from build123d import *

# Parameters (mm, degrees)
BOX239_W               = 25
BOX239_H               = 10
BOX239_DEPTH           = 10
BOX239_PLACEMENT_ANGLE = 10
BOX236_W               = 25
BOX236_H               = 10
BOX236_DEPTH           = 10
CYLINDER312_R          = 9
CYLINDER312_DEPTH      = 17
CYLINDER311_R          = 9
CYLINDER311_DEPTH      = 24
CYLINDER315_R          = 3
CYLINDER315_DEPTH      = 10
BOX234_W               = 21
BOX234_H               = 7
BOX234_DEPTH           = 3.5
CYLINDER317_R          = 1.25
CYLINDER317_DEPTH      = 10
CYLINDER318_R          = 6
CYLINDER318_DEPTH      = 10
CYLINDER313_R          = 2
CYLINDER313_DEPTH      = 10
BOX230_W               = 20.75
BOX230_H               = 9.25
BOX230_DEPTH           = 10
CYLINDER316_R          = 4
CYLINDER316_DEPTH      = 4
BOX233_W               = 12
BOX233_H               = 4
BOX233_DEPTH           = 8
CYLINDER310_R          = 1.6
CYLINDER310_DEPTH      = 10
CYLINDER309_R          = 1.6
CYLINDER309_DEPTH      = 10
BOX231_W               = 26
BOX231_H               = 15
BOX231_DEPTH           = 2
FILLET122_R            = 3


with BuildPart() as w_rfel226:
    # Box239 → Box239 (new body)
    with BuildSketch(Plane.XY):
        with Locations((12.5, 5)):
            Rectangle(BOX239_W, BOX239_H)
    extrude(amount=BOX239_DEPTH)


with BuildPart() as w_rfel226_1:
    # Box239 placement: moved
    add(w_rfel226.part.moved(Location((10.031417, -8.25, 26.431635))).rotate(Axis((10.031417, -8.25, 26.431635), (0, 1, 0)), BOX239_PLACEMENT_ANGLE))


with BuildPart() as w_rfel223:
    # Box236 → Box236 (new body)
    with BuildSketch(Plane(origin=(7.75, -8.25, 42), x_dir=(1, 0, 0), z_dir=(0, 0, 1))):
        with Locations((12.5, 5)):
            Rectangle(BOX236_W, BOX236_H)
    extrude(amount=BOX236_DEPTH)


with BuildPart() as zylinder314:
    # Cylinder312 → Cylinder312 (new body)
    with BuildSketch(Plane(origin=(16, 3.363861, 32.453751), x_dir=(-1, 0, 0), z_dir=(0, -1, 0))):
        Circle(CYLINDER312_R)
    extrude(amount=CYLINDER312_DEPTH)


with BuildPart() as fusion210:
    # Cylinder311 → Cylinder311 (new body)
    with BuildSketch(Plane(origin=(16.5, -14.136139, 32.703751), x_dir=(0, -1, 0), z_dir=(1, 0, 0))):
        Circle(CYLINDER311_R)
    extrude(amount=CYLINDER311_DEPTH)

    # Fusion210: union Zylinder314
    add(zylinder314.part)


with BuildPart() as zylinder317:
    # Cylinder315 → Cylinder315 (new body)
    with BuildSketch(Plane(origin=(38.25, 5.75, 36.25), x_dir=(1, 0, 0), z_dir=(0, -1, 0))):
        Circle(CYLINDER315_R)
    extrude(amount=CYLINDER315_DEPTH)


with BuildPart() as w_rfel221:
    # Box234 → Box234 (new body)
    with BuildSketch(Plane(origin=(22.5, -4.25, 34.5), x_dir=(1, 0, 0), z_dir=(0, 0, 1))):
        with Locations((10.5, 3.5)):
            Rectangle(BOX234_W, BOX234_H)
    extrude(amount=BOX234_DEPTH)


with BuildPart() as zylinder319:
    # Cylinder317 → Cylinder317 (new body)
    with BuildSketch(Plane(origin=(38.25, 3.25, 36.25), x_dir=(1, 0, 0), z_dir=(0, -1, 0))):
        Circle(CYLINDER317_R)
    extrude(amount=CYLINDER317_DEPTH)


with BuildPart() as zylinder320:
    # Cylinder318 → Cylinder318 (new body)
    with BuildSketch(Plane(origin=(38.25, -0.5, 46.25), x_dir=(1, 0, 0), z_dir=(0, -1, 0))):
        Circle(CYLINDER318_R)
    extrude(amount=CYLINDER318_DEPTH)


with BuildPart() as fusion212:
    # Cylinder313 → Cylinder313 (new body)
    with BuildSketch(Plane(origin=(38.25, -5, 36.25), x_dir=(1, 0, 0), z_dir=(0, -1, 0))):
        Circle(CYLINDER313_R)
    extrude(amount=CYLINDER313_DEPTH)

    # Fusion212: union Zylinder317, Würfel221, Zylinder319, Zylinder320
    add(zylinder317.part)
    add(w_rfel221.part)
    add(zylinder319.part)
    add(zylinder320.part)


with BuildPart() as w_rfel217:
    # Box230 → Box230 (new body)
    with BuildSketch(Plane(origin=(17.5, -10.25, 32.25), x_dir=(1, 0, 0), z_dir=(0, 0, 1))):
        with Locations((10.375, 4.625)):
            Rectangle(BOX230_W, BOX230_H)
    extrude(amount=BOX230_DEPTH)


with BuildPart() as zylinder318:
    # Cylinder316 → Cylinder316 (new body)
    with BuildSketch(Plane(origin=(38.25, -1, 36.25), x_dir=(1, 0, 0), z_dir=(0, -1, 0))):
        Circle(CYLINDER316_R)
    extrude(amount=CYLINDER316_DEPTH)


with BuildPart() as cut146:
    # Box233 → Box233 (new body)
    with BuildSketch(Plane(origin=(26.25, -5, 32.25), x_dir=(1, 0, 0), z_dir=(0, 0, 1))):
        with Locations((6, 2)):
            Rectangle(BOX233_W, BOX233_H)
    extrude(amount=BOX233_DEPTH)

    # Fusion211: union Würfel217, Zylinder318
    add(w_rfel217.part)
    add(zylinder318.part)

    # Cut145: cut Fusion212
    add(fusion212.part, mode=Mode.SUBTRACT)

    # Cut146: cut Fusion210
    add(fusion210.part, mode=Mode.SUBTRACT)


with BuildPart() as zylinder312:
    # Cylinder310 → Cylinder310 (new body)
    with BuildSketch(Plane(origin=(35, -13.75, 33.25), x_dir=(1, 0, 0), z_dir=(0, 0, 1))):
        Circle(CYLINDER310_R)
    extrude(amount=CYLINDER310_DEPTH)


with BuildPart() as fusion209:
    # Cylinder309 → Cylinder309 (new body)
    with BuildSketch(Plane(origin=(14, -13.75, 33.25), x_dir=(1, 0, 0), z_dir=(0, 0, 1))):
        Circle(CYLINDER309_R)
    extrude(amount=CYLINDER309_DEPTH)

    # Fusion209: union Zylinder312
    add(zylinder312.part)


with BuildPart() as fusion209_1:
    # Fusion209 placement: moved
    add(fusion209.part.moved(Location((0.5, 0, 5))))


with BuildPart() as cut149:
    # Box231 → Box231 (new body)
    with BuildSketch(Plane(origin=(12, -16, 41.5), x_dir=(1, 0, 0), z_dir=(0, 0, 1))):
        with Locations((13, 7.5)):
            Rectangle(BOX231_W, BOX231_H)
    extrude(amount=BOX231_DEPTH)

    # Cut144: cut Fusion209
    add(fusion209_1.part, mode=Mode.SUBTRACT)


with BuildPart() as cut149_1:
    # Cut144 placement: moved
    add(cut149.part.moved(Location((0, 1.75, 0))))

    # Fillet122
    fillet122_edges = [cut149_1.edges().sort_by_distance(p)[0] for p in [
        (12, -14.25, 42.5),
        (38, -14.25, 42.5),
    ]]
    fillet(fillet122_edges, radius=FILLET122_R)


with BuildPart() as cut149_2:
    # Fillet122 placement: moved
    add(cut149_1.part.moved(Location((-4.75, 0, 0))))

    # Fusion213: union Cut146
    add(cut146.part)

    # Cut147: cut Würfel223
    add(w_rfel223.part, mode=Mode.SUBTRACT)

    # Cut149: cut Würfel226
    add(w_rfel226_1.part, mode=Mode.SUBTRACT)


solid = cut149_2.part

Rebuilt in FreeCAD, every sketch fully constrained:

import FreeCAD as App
import Part
import Sketcher
from FreeCAD import Vector
Q = App.Units.Quantity


def edges_at(feature, points):
    """Names of the edges that pass closest to the given points."""
    edges = feature.Shape.Edges
    near = lambda p: min(range(len(edges)), key=lambda i: edges[i].distToShape(Part.Vertex(*p))[0])
    return sorted({f"Edge{near(p) + 1}" for p in points})


def add_polygon(sketch, points):
    """Adds a closed chain of lines whose ends are joined by coincident constraints."""
    first, n = sketch.GeometryCount, len(points)
    for a, b in zip(points, points[1:] + points[:1]):
        sketch.addGeometry(Part.LineSegment(App.Vector(*a, 0), App.Vector(*b, 0)), False)
    for i in range(n):
        sketch.addConstraint(Sketcher.Constraint("Coincident", first + i, 2, first + (i + 1) % n, 1))

doc = App.newDocument("Part")
body = doc.addObject("PartDesign::Body", "Body")

sketch1 = doc.addObject("Sketcher::SketchObject", "Sketch")
body.addObject(sketch1)
sketch1.AttachmentSupport = (doc.XY_Plane, [""])
sketch1.MapMode = "FlatFace"
add_polygon(sketch1, [(0, 10), (0, 0), (25, 0), (25, 10)])
sketch1.addConstraint(Sketcher.Constraint("Vertical", 0))
sketch1.addConstraint(Sketcher.Constraint("Horizontal", 1))
sketch1.addConstraint(Sketcher.Constraint("Vertical", 2))
sketch1.addConstraint(Sketcher.Constraint("Horizontal", 3))
sketch1.addConstraint(Sketcher.Constraint("Coincident", 0, 2, -1, 1))
sketch1.addConstraint(Sketcher.Constraint("DistanceX", 1, 1, 1, 2, Q("25 mm")))
sketch1.addConstraint(Sketcher.Constraint("DistanceY", 0, 2, 0, 1, Q("10 mm")))
pad1 = doc.addObject("PartDesign::Pad", "Pad")
body.addObject(pad1)
pad1.Profile = sketch1
pad1.Length = 10
body2 = doc.addObject("PartDesign::Body", "Body001")
doc.recompute()

body.Placement = App.Placement(Vector(10.031417, -8.25, 26.431635), App.Rotation(Vector(0, 1, 0), 10))
boolean = doc.addObject("PartDesign::Boolean", "Boolean")
body2.addObject(boolean)
boolean.Type = "Fuse"
boolean.addObjects([body])
body3 = doc.addObject("PartDesign::Body", "Body002")

sketch2 = doc.addObject("Sketcher::SketchObject", "Sketch001")
body3.addObject(sketch2)
sketch2.AttachmentSupport = (doc.getObject("XY_Plane002"), [""])
sketch2.MapMode = "FlatFace"
sketch2.AttachmentOffset = App.Placement(Vector(0, 0, 42), App.Rotation())
add_polygon(sketch2, [(8, 2), (8, -8), (33, -8), (33, 2)])
sketch2.addConstraint(Sketcher.Constraint("Vertical", 0))
sketch2.addConstraint(Sketcher.Constraint("Horizontal", 1))
sketch2.addConstraint(Sketcher.Constraint("Vertical", 2))
sketch2.addConstraint(Sketcher.Constraint("Horizontal", 3))
sketch2.addConstraint(Sketcher.Constraint("DistanceX", 1, 1, 1, 2, Q("25 mm")))
sketch2.addConstraint(Sketcher.Constraint("DistanceY", 0, 2, 0, 1, Q("10 mm")))
sketch2.addConstraint(Sketcher.Constraint("DistanceX", -1, 1, 0, 2, Q("7.75 mm")))
sketch2.addConstraint(Sketcher.Constraint("DistanceY", 0, 2, -1, 1, Q("8.25 mm")))
pad2 = doc.addObject("PartDesign::Pad", "Pad001")
body3.addObject(pad2)
pad2.Profile = sketch2
pad2.Length = 10
body4 = doc.addObject("PartDesign::Body", "Body003")

sketch3 = doc.addObject("Sketcher::SketchObject", "Sketch002")
body4.addObject(sketch3)
sketch3.AttachmentSupport = (doc.getObject("XZ_Plane003"), [""])
sketch3.MapMode = "FlatFace"
sketch3.AttachmentOffset = App.Placement(Vector(0, 0, -3.363861), App.Rotation())
sketch3.addGeometry(Part.Circle(Vector(16, 32, 0), Vector(0, 0, 1), 9), False)
sketch3.addConstraint(Sketcher.Constraint("Diameter", 0, Q("18 mm")))
sketch3.addConstraint(Sketcher.Constraint("DistanceX", -1, 1, 0, 3, Q("16 mm")))
sketch3.addConstraint(Sketcher.Constraint("DistanceY", -1, 1, 0, 3, Q("32.453751 mm")))
pad3 = doc.addObject("PartDesign::Pad", "Pad002")
body4.addObject(pad3)
pad3.Profile = sketch3
pad3.Length = 17
body5 = doc.addObject("PartDesign::Body", "Body004")

sketch4 = doc.addObject("Sketcher::SketchObject", "Sketch003")
body5.addObject(sketch4)
sketch4.AttachmentSupport = (doc.getObject("YZ_Plane004"), [""])
sketch4.MapMode = "FlatFace"
sketch4.AttachmentOffset = App.Placement(Vector(0, 0, 16.5), App.Rotation())
sketch4.addGeometry(Part.Circle(Vector(-14, 33, 0), Vector(0, 0, 1), 9), False)
sketch4.addConstraint(Sketcher.Constraint("Diameter", 0, Q("18 mm")))
sketch4.addConstraint(Sketcher.Constraint("DistanceX", 0, 3, -1, 1, Q("14.136139 mm")))
sketch4.addConstraint(Sketcher.Constraint("DistanceY", -1, 1, 0, 3, Q("32.703751 mm")))
pad4 = doc.addObject("PartDesign::Pad", "Pad003")
body5.addObject(pad4)
pad4.Profile = sketch4
pad4.Length = 24
doc.recompute()

boolean2 = doc.addObject("PartDesign::Boolean", "Boolean001")
body5.addObject(boolean2)
boolean2.Type = "Fuse"
boolean2.addObjects([body4])
body6 = doc.addObject("PartDesign::Body", "Body005")

sketch5 = doc.addObject("Sketcher::SketchObject", "Sketch004")
body6.addObject(sketch5)
sketch5.AttachmentSupport = (doc.getObject("XZ_Plane005"), [""])
sketch5.MapMode = "FlatFace"
sketch5.AttachmentOffset = App.Placement(Vector(0, 0, -5.75), App.Rotation())
sketch5.addGeometry(Part.Circle(Vector(38.2, 36.2, 0), Vector(0, 0, 1), 3), False)
sketch5.addConstraint(Sketcher.Constraint("Diameter", 0, Q("6 mm")))
sketch5.addConstraint(Sketcher.Constraint("DistanceX", -1, 1, 0, 3, Q("38.25 mm")))
sketch5.addConstraint(Sketcher.Constraint("DistanceY", -1, 1, 0, 3, Q("36.25 mm")))
pad5 = doc.addObject("PartDesign::Pad", "Pad004")
body6.addObject(pad5)
pad5.Profile = sketch5
pad5.Length = 10
body7 = doc.addObject("PartDesign::Body", "Body006")

sketch6 = doc.addObject("Sketcher::SketchObject", "Sketch005")
body7.addObject(sketch6)
sketch6.AttachmentSupport = (doc.getObject("XY_Plane006"), [""])
sketch6.MapMode = "FlatFace"
sketch6.AttachmentOffset = App.Placement(Vector(0, 0, 34.5), App.Rotation())
add_polygon(sketch6, [(22, 3), (22, -4), (44, -4), (44, 3)])
sketch6.addConstraint(Sketcher.Constraint("Vertical", 0))
sketch6.addConstraint(Sketcher.Constraint("Horizontal", 1))
sketch6.addConstraint(Sketcher.Constraint("Vertical", 2))
sketch6.addConstraint(Sketcher.Constraint("Horizontal", 3))
sketch6.addConstraint(Sketcher.Constraint("DistanceX", 1, 1, 1, 2, Q("21 mm")))
sketch6.addConstraint(Sketcher.Constraint("DistanceY", 0, 2, 0, 1, Q("7 mm")))
sketch6.addConstraint(Sketcher.Constraint("DistanceX", -1, 1, 0, 2, Q("22.5 mm")))
sketch6.addConstraint(Sketcher.Constraint("DistanceY", 0, 2, -1, 1, Q("4.25 mm")))
pad6 = doc.addObject("PartDesign::Pad", "Pad005")
body7.addObject(pad6)
pad6.Profile = sketch6
pad6.Length = 3.5
body8 = doc.addObject("PartDesign::Body", "Body007")

sketch7 = doc.addObject("Sketcher::SketchObject", "Sketch006")
body8.addObject(sketch7)
sketch7.AttachmentSupport = (doc.getObject("XZ_Plane007"), [""])
sketch7.MapMode = "FlatFace"
sketch7.AttachmentOffset = App.Placement(Vector(0, 0, -3.25), App.Rotation())
sketch7.addGeometry(Part.Circle(Vector(38.2, 36.2, 0), Vector(0, 0, 1), 1.2), False)
sketch7.addConstraint(Sketcher.Constraint("Diameter", 0, Q("2.5 mm")))
sketch7.addConstraint(Sketcher.Constraint("DistanceX", -1, 1, 0, 3, Q("38.25 mm")))
sketch7.addConstraint(Sketcher.Constraint("DistanceY", -1, 1, 0, 3, Q("36.25 mm")))
pad7 = doc.addObject("PartDesign::Pad", "Pad006")
body8.addObject(pad7)
pad7.Profile = sketch7
pad7.Length = 10
body9 = doc.addObject("PartDesign::Body", "Body008")

sketch8 = doc.addObject("Sketcher::SketchObject", "Sketch007")
body9.addObject(sketch8)
sketch8.AttachmentSupport = (doc.getObject("XZ_Plane008"), [""])
sketch8.MapMode = "FlatFace"
sketch8.AttachmentOffset = App.Placement(Vector(0, 0, 0.5), App.Rotation())
sketch8.addGeometry(Part.Circle(Vector(38, 46, 0), Vector(0, 0, 1), 6), False)
sketch8.addConstraint(Sketcher.Constraint("Diameter", 0, Q("12 mm")))
sketch8.addConstraint(Sketcher.Constraint("DistanceX", -1, 1, 0, 3, Q("38.25 mm")))
sketch8.addConstraint(Sketcher.Constraint("DistanceY", -1, 1, 0, 3, Q("46.25 mm")))
pad8 = doc.addObject("PartDesign::Pad", "Pad007")
body9.addObject(pad8)
pad8.Profile = sketch8
pad8.Length = 10
body10 = doc.addObject("PartDesign::Body", "Body009")
body10.AllowCompound = True

sketch9 = doc.addObject("Sketcher::SketchObject", "Sketch008")
body10.addObject(sketch9)
sketch9.AttachmentSupport = (doc.getObject("XZ_Plane009"), [""])
sketch9.MapMode = "FlatFace"
sketch9.AttachmentOffset = App.Placement(Vector(0, 0, 5), App.Rotation())
sketch9.addGeometry(Part.Circle(Vector(38.2, 36.2, 0), Vector(0, 0, 1), 2), False)
sketch9.addConstraint(Sketcher.Constraint("Diameter", 0, Q("4 mm")))
sketch9.addConstraint(Sketcher.Constraint("DistanceX", -1, 1, 0, 3, Q("38.25 mm")))
sketch9.addConstraint(Sketcher.Constraint("DistanceY", -1, 1, 0, 3, Q("36.25 mm")))
pad9 = doc.addObject("PartDesign::Pad", "Pad008")
body10.addObject(pad9)
pad9.Profile = sketch9
pad9.Length = 10
doc.recompute()

boolean3 = doc.addObject("PartDesign::Boolean", "Boolean002")
body10.addObject(boolean3)
boolean3.Type = "Fuse"
boolean3.addObjects([body6])
doc.recompute()

boolean4 = doc.addObject("PartDesign::Boolean", "Boolean003")
body10.addObject(boolean4)
boolean4.Type = "Fuse"
boolean4.addObjects([body7])
doc.recompute()

boolean5 = doc.addObject("PartDesign::Boolean", "Boolean004")
body10.addObject(boolean5)
boolean5.Type = "Fuse"
boolean5.addObjects([body8])
doc.recompute()

boolean6 = doc.addObject("PartDesign::Boolean", "Boolean005")
body10.addObject(boolean6)
boolean6.Type = "Fuse"
boolean6.addObjects([body9])
body11 = doc.addObject("PartDesign::Body", "Body010")

sketch10 = doc.addObject("Sketcher::SketchObject", "Sketch009")
body11.addObject(sketch10)
sketch10.AttachmentSupport = (doc.getObject("XY_Plane010"), [""])
sketch10.MapMode = "FlatFace"
sketch10.AttachmentOffset = App.Placement(Vector(0, 0, 32.25), App.Rotation())
add_polygon(sketch10, [(18, -1), (18, -10), (38, -10), (38, -1)])
sketch10.addConstraint(Sketcher.Constraint("Vertical", 0))
sketch10.addConstraint(Sketcher.Constraint("Horizontal", 1))
sketch10.addConstraint(Sketcher.Constraint("Vertical", 2))
sketch10.addConstraint(Sketcher.Constraint("Horizontal", 3))
sketch10.addConstraint(Sketcher.Constraint("DistanceY", 2, 2, -1, 1, Q("1 mm")))
sketch10.addConstraint(Sketcher.Constraint("DistanceX", 1, 1, 1, 2, Q("20.75 mm")))
sketch10.addConstraint(Sketcher.Constraint("DistanceY", 0, 2, 0, 1, Q("9.25 mm")))
sketch10.addConstraint(Sketcher.Constraint("DistanceX", -1, 1, 0, 2, Q("17.5 mm")))
pad10 = doc.addObject("PartDesign::Pad", "Pad009")
body11.addObject(pad10)
pad10.Profile = sketch10
pad10.Length = 10
body12 = doc.addObject("PartDesign::Body", "Body011")

sketch11 = doc.addObject("Sketcher::SketchObject", "Sketch010")
body12.addObject(sketch11)
sketch11.AttachmentSupport = (doc.getObject("XZ_Plane011"), [""])
sketch11.MapMode = "FlatFace"
sketch11.AttachmentOffset = App.Placement(Vector(0, 0, 1), App.Rotation())
sketch11.addGeometry(Part.Circle(Vector(38.2, 36.2, 0), Vector(0, 0, 1), 4), False)
sketch11.addConstraint(Sketcher.Constraint("Diameter", 0, Q("8 mm")))
sketch11.addConstraint(Sketcher.Constraint("DistanceX", -1, 1, 0, 3, Q("38.25 mm")))
sketch11.addConstraint(Sketcher.Constraint("DistanceY", -1, 1, 0, 3, Q("36.25 mm")))
pad11 = doc.addObject("PartDesign::Pad", "Pad010")
body12.addObject(pad11)
pad11.Profile = sketch11
pad11.Length = 4
body13 = doc.addObject("PartDesign::Body", "Body012")

sketch12 = doc.addObject("Sketcher::SketchObject", "Sketch011")
body13.addObject(sketch12)
sketch12.AttachmentSupport = (doc.getObject("XY_Plane012"), [""])
sketch12.MapMode = "FlatFace"
sketch12.AttachmentOffset = App.Placement(Vector(0, 0, 32.25), App.Rotation())
add_polygon(sketch12, [(26.2, -1), (26.2, -5), (38.2, -5), (38.2, -1)])
sketch12.addConstraint(Sketcher.Constraint("Vertical", 0))
sketch12.addConstraint(Sketcher.Constraint("Horizontal", 1))
sketch12.addConstraint(Sketcher.Constraint("Vertical", 2))
sketch12.addConstraint(Sketcher.Constraint("Horizontal", 3))
sketch12.addConstraint(Sketcher.Constraint("DistanceX", 1, 1, 1, 2, Q("12 mm")))
sketch12.addConstraint(Sketcher.Constraint("DistanceY", 0, 2, 0, 1, Q("4 mm")))
sketch12.addConstraint(Sketcher.Constraint("DistanceY", 0, 2, -1, 1, Q("5 mm")))
sketch12.addConstraint(Sketcher.Constraint("DistanceX", -1, 1, 0, 2, Q("26.25 mm")))
pad12 = doc.addObject("PartDesign::Pad", "Pad011")
body13.addObject(pad12)
pad12.Profile = sketch12
pad12.Length = 8
doc.recompute()

boolean7 = doc.addObject("PartDesign::Boolean", "Boolean006")
body13.addObject(boolean7)
boolean7.Type = "Fuse"
boolean7.addObjects([body11])
doc.recompute()

boolean8 = doc.addObject("PartDesign::Boolean", "Boolean007")
body13.addObject(boolean8)
boolean8.Type = "Fuse"
boolean8.addObjects([body12])
doc.recompute()

boolean9 = doc.addObject("PartDesign::Boolean", "Boolean008")
body13.addObject(boolean9)
boolean9.Type = "Cut"
boolean9.addObjects([body10])
doc.recompute()

boolean10 = doc.addObject("PartDesign::Boolean", "Boolean009")
body13.addObject(boolean10)
boolean10.Type = "Cut"
boolean10.addObjects([body5])
body14 = doc.addObject("PartDesign::Body", "Body013")

sketch13 = doc.addObject("Sketcher::SketchObject", "Sketch012")
body14.addObject(sketch13)
sketch13.AttachmentSupport = (doc.getObject("XY_Plane013"), [""])
sketch13.MapMode = "FlatFace"
sketch13.AttachmentOffset = App.Placement(Vector(0, 0, 33.25), App.Rotation())
sketch13.addGeometry(Part.Circle(Vector(35, -13.8, 0), Vector(0, 0, 1), 1.6), False)
sketch13.addConstraint(Sketcher.Constraint("Diameter", 0, Q("3.2 mm")))
sketch13.addConstraint(Sketcher.Constraint("DistanceX", -1, 1, 0, 3, Q("35 mm")))
sketch13.addConstraint(Sketcher.Constraint("DistanceY", 0, 3, -1, 1, Q("13.75 mm")))
pad13 = doc.addObject("PartDesign::Pad", "Pad012")
body14.addObject(pad13)
pad13.Profile = sketch13
pad13.Length = 10
body15 = doc.addObject("PartDesign::Body", "Body014")
body15.AllowCompound = True

sketch14 = doc.addObject("Sketcher::SketchObject", "Sketch013")
body15.addObject(sketch14)
sketch14.AttachmentSupport = (doc.getObject("XY_Plane014"), [""])
sketch14.MapMode = "FlatFace"
sketch14.AttachmentOffset = App.Placement(Vector(0, 0, 33.25), App.Rotation())
sketch14.addGeometry(Part.Circle(Vector(14, -13.8, 0), Vector(0, 0, 1), 1.6), False)
sketch14.addConstraint(Sketcher.Constraint("Diameter", 0, Q("3.2 mm")))
sketch14.addConstraint(Sketcher.Constraint("DistanceX", -1, 1, 0, 3, Q("14 mm")))
sketch14.addConstraint(Sketcher.Constraint("DistanceY", 0, 3, -1, 1, Q("13.75 mm")))
pad14 = doc.addObject("PartDesign::Pad", "Pad013")
body15.addObject(pad14)
pad14.Profile = sketch14
pad14.Length = 10
doc.recompute()

boolean11 = doc.addObject("PartDesign::Boolean", "Boolean010")
body15.addObject(boolean11)
boolean11.Type = "Fuse"
boolean11.addObjects([body14])
body16 = doc.addObject("PartDesign::Body", "Body015")
body16.AllowCompound = True
doc.recompute()

body15.Placement = App.Placement(Vector(0.5, 0, 5), App.Rotation(Vector(0, 0, 1), 0))
boolean12 = doc.addObject("PartDesign::Boolean", "Boolean011")
body16.addObject(boolean12)
boolean12.Type = "Fuse"
boolean12.addObjects([body15])
body17 = doc.addObject("PartDesign::Body", "Body016")

sketch15 = doc.addObject("Sketcher::SketchObject", "Sketch014")
body17.addObject(sketch15)
sketch15.AttachmentSupport = (doc.getObject("XY_Plane016"), [""])
sketch15.MapMode = "FlatFace"
sketch15.AttachmentOffset = App.Placement(Vector(0, 0, 41.5), App.Rotation())
add_polygon(sketch15, [(12, -1), (12, -16), (38, -16), (38, -1)])
sketch15.addConstraint(Sketcher.Constraint("Vertical", 0))
sketch15.addConstraint(Sketcher.Constraint("Horizontal", 1))
sketch15.addConstraint(Sketcher.Constraint("Vertical", 2))
sketch15.addConstraint(Sketcher.Constraint("Horizontal", 3))
sketch15.addConstraint(Sketcher.Constraint("DistanceX", 1, 1, 1, 2, Q("26 mm")))
sketch15.addConstraint(Sketcher.Constraint("DistanceY", 0, 2, 0, 1, Q("15 mm")))
sketch15.addConstraint(Sketcher.Constraint("DistanceX", -1, 1, 0, 2, Q("12 mm")))
sketch15.addConstraint(Sketcher.Constraint("DistanceY", 0, 2, -1, 1, Q("16 mm")))
pad15 = doc.addObject("PartDesign::Pad", "Pad014")
body17.addObject(pad15)
pad15.Profile = sketch15
pad15.Length = 2
doc.recompute()

boolean13 = doc.addObject("PartDesign::Boolean", "Boolean012")
body17.addObject(boolean13)
boolean13.Type = "Cut"
boolean13.addObjects([body16])
body18 = doc.addObject("PartDesign::Body", "Body017")
doc.recompute()

body17.Placement = App.Placement(Vector(0, 1.75, 0), App.Rotation(Vector(0, 0, 1), 0))
boolean14 = doc.addObject("PartDesign::Boolean", "Boolean013")
body18.addObject(boolean14)
boolean14.Type = "Fuse"
boolean14.addObjects([body17])
doc.recompute()

fillet = doc.addObject("PartDesign::Fillet", "Fillet")
body18.addObject(fillet)
fillet.Base = (boolean14, edges_at(boolean14, [(12, -14.25, 42.5), (38, -14.25, 42.5)]))
fillet.Radius = 3
body19 = doc.addObject("PartDesign::Body", "Body018")
doc.recompute()

body18.Placement = App.Placement(Vector(-4.75, 0, 0), App.Rotation(Vector(0, 0, 1), 0))
boolean15 = doc.addObject("PartDesign::Boolean", "Boolean014")
body19.addObject(boolean15)
boolean15.Type = "Fuse"
boolean15.addObjects([body18])
doc.recompute()

boolean16 = doc.addObject("PartDesign::Boolean", "Boolean015")
body19.addObject(boolean16)
boolean16.Type = "Fuse"
boolean16.addObjects([body13])
doc.recompute()

boolean17 = doc.addObject("PartDesign::Boolean", "Boolean016")
body19.addObject(boolean17)
boolean17.Type = "Cut"
boolean17.addObjects([body3])
doc.recompute()

boolean18 = doc.addObject("PartDesign::Boolean", "Boolean017")
body19.addObject(boolean18)
boolean18.Type = "Cut"
boolean18.addObjects([body2])

doc.recompute()
